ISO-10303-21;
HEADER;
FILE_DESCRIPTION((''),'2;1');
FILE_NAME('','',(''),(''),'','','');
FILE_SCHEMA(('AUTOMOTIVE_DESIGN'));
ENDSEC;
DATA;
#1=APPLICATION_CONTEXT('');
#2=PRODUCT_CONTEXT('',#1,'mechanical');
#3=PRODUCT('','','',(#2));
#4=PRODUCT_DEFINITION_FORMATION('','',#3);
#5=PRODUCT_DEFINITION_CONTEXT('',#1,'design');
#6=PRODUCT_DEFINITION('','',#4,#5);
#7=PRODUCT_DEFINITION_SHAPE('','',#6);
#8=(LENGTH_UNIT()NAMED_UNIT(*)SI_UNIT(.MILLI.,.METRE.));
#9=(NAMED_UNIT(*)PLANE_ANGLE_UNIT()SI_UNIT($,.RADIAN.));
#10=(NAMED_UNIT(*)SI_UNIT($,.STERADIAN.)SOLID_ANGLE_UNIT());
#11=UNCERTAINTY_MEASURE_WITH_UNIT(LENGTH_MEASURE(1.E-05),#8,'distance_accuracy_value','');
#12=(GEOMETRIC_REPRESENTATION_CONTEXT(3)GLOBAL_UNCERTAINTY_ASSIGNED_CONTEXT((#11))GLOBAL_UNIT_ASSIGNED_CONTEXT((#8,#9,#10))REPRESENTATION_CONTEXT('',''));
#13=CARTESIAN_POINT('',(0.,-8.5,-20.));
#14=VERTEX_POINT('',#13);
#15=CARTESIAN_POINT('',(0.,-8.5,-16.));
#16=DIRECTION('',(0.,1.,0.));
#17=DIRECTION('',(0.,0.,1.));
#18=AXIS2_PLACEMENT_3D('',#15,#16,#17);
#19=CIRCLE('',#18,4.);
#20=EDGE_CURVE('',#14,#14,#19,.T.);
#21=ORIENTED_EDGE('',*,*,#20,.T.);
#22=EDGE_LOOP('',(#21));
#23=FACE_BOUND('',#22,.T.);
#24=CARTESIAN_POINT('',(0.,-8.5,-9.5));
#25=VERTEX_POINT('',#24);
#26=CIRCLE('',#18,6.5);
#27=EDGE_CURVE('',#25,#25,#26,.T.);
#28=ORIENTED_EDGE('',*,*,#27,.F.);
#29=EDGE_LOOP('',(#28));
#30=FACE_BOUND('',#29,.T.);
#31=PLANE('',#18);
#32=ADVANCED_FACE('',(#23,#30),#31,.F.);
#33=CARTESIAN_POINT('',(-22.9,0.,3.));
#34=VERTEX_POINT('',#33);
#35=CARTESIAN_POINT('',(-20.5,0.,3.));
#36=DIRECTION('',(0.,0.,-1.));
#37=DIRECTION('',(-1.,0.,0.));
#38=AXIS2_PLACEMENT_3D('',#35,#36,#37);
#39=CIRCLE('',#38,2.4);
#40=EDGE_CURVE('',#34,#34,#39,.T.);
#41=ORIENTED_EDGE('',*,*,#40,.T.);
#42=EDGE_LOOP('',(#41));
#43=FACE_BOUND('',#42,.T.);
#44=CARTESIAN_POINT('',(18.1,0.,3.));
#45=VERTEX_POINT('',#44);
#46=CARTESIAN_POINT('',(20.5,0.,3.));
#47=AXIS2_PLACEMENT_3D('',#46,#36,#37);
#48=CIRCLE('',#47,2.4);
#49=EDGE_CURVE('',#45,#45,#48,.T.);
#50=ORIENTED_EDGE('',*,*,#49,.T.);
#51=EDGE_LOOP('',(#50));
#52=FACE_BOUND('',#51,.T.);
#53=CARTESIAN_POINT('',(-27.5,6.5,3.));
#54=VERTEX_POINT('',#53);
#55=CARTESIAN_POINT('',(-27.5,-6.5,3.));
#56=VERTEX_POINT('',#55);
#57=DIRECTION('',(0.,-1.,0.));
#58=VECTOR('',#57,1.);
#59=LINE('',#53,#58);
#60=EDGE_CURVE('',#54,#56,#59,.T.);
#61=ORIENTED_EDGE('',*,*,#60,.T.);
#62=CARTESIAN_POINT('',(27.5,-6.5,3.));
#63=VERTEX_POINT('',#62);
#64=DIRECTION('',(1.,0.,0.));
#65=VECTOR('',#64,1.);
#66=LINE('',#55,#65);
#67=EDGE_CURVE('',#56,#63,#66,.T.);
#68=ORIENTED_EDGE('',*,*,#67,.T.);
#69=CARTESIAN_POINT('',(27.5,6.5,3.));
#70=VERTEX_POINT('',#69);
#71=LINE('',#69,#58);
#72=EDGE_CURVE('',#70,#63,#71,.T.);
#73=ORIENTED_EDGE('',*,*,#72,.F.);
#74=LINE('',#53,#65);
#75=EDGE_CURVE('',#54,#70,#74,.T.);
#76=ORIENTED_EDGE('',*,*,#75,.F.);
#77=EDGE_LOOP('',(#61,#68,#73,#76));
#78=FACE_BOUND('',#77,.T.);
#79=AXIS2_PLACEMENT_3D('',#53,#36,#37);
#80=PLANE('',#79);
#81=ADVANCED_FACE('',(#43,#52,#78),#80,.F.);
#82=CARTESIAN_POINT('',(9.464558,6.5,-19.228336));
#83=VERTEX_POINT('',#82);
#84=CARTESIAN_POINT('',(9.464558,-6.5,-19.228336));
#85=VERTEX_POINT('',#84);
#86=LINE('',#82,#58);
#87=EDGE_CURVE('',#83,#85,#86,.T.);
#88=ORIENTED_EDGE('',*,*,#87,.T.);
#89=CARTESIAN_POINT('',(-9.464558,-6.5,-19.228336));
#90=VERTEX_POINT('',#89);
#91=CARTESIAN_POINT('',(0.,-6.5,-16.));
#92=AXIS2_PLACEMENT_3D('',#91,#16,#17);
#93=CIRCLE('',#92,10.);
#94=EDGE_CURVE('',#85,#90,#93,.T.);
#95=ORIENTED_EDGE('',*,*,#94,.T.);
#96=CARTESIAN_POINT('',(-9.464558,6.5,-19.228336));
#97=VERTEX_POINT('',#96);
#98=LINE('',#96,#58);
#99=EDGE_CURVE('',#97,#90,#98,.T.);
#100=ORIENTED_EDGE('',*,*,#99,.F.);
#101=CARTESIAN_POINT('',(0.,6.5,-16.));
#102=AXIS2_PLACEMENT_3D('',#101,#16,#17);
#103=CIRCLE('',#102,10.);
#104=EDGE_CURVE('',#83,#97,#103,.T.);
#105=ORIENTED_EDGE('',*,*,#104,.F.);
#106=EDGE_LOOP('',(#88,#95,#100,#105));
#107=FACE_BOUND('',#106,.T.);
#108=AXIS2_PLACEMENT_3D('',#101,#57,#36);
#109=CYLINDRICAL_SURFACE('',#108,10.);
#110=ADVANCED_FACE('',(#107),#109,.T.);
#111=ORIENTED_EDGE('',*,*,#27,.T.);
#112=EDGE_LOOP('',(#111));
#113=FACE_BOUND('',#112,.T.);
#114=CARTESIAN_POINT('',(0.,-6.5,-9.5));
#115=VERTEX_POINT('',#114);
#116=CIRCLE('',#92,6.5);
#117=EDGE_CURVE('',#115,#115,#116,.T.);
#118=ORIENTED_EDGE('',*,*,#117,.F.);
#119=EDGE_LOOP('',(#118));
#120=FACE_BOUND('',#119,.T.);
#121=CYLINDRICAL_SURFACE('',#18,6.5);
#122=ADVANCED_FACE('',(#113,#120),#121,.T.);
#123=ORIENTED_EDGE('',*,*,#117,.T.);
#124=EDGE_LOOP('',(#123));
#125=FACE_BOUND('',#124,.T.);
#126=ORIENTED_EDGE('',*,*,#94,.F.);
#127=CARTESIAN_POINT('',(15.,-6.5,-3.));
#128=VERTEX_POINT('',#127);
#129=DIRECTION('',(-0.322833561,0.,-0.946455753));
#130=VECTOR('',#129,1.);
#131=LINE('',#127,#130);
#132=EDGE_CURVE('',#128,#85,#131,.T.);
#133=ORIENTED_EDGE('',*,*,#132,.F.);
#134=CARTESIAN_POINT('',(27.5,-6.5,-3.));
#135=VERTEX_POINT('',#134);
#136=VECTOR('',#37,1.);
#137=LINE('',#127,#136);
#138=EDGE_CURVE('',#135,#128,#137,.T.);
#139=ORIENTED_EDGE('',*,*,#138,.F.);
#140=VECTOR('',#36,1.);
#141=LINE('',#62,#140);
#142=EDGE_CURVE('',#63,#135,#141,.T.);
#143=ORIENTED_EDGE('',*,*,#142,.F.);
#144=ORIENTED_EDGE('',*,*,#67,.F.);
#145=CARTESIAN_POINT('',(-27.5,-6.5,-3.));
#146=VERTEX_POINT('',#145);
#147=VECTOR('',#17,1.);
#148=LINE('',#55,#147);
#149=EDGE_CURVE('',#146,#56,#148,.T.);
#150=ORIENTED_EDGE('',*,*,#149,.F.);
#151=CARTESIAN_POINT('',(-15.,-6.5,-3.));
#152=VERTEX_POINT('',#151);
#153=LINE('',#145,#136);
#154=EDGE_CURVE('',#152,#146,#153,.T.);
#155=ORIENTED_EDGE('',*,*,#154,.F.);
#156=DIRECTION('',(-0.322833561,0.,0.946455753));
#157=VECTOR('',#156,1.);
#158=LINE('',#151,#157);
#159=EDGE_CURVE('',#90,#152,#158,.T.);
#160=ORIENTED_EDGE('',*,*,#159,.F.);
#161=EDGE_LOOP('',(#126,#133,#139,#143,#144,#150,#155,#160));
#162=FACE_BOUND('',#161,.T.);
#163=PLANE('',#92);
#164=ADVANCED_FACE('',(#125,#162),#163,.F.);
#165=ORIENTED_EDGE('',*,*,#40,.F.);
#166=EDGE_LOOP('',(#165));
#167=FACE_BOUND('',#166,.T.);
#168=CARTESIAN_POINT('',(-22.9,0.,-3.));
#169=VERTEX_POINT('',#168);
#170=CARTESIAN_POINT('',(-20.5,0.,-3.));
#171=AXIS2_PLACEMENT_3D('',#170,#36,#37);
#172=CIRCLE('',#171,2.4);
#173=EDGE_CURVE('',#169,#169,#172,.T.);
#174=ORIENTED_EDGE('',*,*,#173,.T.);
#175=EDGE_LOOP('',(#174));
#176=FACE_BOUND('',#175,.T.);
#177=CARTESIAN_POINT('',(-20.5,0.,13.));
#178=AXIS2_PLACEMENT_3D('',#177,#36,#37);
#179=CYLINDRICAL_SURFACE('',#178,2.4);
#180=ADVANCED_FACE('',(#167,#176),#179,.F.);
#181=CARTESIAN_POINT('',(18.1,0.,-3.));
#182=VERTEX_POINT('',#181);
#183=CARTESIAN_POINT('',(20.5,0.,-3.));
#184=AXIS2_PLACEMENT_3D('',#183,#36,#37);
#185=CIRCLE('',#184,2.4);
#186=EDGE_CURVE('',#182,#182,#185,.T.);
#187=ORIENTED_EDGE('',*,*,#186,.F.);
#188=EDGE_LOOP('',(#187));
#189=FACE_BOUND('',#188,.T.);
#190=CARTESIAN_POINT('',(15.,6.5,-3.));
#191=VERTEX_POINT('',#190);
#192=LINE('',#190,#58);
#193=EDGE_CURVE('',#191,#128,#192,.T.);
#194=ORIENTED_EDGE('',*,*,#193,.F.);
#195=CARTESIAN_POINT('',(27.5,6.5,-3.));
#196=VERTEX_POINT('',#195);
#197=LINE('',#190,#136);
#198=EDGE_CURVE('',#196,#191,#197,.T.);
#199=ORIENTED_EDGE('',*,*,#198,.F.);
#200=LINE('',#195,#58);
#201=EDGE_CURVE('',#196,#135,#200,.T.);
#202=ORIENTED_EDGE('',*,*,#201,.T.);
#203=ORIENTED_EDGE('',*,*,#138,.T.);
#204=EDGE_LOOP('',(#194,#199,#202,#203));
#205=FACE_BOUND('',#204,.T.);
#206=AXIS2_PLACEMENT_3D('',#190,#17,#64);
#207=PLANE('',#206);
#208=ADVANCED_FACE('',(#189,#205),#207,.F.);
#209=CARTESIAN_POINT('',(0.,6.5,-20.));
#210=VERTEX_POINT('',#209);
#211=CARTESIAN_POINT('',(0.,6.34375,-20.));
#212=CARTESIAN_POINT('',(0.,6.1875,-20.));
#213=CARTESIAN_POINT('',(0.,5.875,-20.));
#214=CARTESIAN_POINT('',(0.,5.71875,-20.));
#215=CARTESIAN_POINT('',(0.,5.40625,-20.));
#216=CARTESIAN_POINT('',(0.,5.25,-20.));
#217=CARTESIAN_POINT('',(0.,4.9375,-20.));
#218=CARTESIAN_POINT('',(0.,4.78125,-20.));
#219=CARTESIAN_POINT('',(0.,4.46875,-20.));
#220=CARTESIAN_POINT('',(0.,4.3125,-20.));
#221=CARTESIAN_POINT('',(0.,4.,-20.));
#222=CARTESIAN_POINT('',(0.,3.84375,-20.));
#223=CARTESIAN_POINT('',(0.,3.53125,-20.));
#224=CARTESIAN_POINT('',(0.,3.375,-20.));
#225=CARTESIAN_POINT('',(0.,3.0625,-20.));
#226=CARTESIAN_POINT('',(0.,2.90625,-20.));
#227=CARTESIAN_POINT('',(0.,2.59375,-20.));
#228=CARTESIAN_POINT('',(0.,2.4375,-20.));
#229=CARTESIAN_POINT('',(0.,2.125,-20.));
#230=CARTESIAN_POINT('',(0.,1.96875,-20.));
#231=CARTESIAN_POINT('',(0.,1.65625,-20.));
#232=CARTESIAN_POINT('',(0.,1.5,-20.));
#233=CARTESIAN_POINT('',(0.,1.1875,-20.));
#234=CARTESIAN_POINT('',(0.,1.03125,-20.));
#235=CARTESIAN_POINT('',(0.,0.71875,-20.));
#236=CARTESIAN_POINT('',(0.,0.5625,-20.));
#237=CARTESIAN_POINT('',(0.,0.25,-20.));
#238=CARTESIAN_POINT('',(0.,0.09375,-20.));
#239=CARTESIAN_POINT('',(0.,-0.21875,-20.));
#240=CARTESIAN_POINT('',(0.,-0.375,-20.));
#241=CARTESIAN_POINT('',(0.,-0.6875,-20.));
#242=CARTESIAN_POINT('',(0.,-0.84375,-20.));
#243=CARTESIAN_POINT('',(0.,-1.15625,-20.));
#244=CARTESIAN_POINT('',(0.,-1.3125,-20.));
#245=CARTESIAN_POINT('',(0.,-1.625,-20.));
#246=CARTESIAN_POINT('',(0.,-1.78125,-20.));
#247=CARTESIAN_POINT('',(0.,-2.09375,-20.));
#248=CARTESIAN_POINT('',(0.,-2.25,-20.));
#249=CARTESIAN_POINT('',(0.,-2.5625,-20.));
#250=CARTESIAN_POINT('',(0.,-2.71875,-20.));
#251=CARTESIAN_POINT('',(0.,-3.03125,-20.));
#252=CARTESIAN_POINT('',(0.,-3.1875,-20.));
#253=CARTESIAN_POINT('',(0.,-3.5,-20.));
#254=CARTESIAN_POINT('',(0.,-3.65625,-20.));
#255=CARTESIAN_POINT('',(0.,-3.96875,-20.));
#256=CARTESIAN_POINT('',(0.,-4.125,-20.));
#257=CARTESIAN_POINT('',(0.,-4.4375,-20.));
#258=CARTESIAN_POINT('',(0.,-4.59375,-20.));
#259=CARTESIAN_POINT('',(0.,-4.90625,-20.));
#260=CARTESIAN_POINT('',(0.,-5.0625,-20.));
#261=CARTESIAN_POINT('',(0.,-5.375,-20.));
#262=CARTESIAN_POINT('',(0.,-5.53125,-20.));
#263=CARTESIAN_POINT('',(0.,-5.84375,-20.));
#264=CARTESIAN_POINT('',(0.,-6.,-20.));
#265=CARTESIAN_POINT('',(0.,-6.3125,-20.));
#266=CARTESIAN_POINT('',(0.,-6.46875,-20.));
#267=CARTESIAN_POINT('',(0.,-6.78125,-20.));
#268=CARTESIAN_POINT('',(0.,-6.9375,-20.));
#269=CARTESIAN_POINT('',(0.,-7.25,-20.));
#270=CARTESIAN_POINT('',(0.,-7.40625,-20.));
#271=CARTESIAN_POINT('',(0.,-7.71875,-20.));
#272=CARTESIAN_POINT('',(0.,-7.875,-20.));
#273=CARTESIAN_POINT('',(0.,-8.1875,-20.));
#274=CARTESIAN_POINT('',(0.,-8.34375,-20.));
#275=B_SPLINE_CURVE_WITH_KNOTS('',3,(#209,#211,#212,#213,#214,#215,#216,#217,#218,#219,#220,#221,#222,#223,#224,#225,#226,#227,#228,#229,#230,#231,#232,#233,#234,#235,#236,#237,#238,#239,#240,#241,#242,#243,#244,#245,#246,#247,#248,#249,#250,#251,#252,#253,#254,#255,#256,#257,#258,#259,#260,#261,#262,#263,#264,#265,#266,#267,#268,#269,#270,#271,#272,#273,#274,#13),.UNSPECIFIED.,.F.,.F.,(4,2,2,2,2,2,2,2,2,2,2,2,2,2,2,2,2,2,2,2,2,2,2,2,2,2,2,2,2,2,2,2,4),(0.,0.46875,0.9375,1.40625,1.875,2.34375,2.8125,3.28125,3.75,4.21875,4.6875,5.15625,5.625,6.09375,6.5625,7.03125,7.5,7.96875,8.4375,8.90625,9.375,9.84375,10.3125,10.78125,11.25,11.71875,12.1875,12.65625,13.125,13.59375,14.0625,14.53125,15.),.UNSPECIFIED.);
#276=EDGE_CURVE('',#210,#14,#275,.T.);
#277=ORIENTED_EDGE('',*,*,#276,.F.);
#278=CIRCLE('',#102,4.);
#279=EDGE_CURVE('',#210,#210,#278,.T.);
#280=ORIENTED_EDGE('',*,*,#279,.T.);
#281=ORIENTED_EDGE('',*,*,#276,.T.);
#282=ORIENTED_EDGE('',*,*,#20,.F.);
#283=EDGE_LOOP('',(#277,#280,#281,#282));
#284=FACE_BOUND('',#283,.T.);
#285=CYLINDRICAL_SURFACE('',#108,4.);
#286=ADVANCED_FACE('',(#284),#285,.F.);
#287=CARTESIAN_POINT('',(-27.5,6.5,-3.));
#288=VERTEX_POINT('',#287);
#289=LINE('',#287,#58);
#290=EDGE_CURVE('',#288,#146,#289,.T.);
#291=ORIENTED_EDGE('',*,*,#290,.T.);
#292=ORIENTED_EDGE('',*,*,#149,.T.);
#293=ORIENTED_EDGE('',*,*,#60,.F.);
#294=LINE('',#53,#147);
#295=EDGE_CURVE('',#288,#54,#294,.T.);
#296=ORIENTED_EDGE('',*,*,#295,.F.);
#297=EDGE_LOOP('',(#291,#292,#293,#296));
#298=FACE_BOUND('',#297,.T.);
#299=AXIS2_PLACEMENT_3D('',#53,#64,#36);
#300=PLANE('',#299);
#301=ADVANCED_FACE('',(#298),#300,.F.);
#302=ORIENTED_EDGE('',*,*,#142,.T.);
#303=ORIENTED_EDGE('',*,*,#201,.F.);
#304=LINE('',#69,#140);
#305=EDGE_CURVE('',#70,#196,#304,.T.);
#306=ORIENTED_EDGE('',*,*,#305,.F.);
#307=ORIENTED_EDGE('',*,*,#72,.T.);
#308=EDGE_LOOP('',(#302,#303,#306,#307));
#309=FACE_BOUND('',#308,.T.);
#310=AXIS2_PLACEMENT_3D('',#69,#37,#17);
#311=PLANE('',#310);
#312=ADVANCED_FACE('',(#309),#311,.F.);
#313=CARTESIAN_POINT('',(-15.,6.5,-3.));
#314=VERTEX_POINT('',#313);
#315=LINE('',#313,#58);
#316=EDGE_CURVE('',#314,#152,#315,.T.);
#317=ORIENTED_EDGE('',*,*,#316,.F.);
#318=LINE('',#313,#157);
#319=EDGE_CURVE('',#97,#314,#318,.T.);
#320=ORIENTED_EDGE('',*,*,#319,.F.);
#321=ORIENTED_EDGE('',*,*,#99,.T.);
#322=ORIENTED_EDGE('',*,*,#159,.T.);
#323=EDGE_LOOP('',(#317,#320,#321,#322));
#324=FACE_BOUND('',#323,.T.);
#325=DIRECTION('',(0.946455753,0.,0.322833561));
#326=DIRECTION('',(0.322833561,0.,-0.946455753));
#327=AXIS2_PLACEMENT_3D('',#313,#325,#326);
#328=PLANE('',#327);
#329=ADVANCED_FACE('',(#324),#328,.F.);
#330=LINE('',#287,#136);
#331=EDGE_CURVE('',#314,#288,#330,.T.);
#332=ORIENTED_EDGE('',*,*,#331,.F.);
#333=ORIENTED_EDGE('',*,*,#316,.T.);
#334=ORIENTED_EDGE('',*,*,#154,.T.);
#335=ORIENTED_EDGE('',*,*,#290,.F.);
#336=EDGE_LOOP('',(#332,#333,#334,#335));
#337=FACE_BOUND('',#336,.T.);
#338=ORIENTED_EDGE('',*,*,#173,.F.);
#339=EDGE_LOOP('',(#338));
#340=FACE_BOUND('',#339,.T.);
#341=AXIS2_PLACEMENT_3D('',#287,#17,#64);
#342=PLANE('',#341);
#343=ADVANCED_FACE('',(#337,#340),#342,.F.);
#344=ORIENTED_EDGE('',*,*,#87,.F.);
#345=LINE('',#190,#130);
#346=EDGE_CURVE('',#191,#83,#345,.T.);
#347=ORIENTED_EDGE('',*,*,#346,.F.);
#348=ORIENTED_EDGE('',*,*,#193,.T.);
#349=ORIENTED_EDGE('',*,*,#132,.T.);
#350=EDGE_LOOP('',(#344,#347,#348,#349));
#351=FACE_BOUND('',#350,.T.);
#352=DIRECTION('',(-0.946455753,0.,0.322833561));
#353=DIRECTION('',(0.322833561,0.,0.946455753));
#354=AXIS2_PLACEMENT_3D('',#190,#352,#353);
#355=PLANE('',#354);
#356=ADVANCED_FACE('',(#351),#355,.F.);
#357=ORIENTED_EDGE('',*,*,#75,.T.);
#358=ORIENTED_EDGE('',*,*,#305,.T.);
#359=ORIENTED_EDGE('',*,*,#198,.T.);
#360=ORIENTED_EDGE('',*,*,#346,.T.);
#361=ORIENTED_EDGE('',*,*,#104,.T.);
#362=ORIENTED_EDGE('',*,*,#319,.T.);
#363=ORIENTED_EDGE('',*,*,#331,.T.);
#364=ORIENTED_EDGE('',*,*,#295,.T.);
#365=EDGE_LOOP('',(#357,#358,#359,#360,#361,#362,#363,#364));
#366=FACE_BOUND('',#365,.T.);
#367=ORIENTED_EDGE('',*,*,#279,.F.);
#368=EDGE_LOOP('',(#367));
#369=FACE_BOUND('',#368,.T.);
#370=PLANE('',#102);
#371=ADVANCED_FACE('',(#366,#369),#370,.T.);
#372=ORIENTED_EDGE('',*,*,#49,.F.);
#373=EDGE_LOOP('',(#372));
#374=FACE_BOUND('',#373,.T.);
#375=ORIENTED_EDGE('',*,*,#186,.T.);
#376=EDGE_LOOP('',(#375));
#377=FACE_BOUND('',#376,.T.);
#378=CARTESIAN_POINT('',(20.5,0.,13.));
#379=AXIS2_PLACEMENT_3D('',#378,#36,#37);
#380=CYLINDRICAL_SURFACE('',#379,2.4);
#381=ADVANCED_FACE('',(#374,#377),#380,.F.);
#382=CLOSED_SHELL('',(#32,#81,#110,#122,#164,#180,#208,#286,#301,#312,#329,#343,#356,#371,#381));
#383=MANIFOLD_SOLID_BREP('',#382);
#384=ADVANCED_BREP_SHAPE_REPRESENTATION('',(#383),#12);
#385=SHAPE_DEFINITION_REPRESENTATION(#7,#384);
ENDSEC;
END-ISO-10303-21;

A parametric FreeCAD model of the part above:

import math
import FreeCAD as App
import Part
import Sketcher
from FreeCAD import Vector
Q = App.Units.Quantity

doc = App.newDocument("Part")
body = doc.addObject("PartDesign::Body", "Body")

# Sketch on XZ plane
sketch1 = body.newObject("Sketcher::SketchObject", "Sketch")
sketch1.AttachmentSupport = (doc.getObject("XZ_Plane"), [""])
sketch1.MapMode = "FlatFace"
sketch1.addGeometry([
    Part.LineSegment(Vector(-9.5, -19.2, 0), Vector(-15, -3, 0)),  # 0
    Part.LineSegment(Vector(-15, -3, 0), Vector(-27.5, -3, 0)),  # 1
    Part.LineSegment(Vector(-27.5, -3, 0), Vector(-27.5, 3, 0)),  # 2
    Part.LineSegment(Vector(-27.5, 3, 0), Vector(27.5, 3, 0)),  # 3
    Part.LineSegment(Vector(27.5, 3, 0), Vector(27.5, -3, 0)),  # 4
    Part.LineSegment(Vector(27.5, -3, 0), Vector(15, -3, 0)),  # 5
    Part.LineSegment(Vector(15, -3, 0), Vector(9.5, -19.2, 0)),  # 6
    Part.ArcOfCircle(Part.Circle(Vector(0, -16, 0), Vector(0, 0, 1), 10), math.radians(-161), math.radians(-19)),  # 7
    Part.Circle(Vector(0, -16, 0), Vector(0, 0, 1), 4),  # 8
], False)
sketch1.addConstraint([
    Sketcher.Constraint("Coincident", 0, 2, 1, 1),
    Sketcher.Constraint("Coincident", 1, 2, 2, 1),
    Sketcher.Constraint("Coincident", 2, 2, 3, 1),
    Sketcher.Constraint("Coincident", 3, 2, 4, 1),
    Sketcher.Constraint("Coincident", 4, 2, 5, 1),
    Sketcher.Constraint("Coincident", 5, 2, 6, 1),
    Sketcher.Constraint("Tangent", 6, 2, 7, 2),
    Sketcher.Constraint("Tangent", 7, 1, 0, 1),
    Sketcher.Constraint("Horizontal", 1),
    Sketcher.Constraint("Vertical", 2),
    Sketcher.Constraint("Horizontal", 3),
    Sketcher.Constraint("Vertical", 4),
    Sketcher.Constraint("Horizontal", 5),
    Sketcher.Constraint("Coincident", 8, 3, 7, 3),
    Sketcher.Constraint("Symmetric", 1, 2, 3, 2, -1, 1),
    Sketcher.Constraint("Symmetric", 0, 2, 5, 2, -2),
    Sketcher.Constraint("PointOnObject", 7, 3, -2),
    Sketcher.Constraint("Diameter", 8, Q("8 mm")),
    Sketcher.Constraint("Radius", 7, Q("10 mm")),
    Sketcher.Constraint("DistanceX", 3, 1, 3, 2, Q("55 mm")),
    Sketcher.Constraint("DistanceY", 2, 1, 2, 2, Q("6 mm")),
    Sketcher.Constraint("DistanceX", 1, 2, 1, 1, Q("12.5 mm")),
    Sketcher.Constraint("DistanceY", 7, 3, -1, 1, Q("16 mm")),
])
pad1 = body.newObject("PartDesign::Pad", "Pad")
pad1.Profile = sketch1
pad1.Length = 13
pad1.Midplane = True

# Sketch on XZ plane
sketch2 = body.newObject("Sketcher::SketchObject", "Sketch001")
sketch2.AttachmentSupport = (doc.getObject("XZ_Plane"), [""])
sketch2.MapMode = "FlatFace"
sketch2.AttachmentOffset = App.Placement(Vector(0, 0, -3.5), App.Rotation())
sketch2.addGeometry(Part.Circle(Vector(0, -16, 0), Vector(0, 0, 1), 6), False)
sketch2.addConstraint([
    Sketcher.Constraint("PointOnObject", 0, 3, -2),
    Sketcher.Constraint("Diameter", 0, Q("13 mm")),
    Sketcher.Constraint("DistanceY", 0, 3, -1, 1, Q("16 mm")),
])
pad2 = body.newObject("PartDesign::Pad", "Pad001")
pad2.Profile = sketch2
pad2.Length = 12

# Sketch on XY plane
sketch3 = body.newObject("Sketcher::SketchObject", "Sketch002")
sketch3.AttachmentSupport = (doc.getObject("XY_Plane"), [""])
sketch3.MapMode = "FlatFace"
sketch3.AttachmentOffset = App.Placement(Vector(0, 0, -3), App.Rotation())
sketch3.addGeometry([
    Part.Circle(Vector(-20.5, 0, 0), Vector(0, 0, 1), 2.4),
    Part.Circle(Vector(20.5, 0, 0), Vector(0, 0, 1), 2.4),
], False)
sketch3.addConstraint([
    Sketcher.Constraint("Equal", 0, 1),
    Sketcher.Constraint("Symmetric", 0, 3, 1, 3, -1, 1),
    Sketcher.Constraint("PointOnObject", 0, 3, -1),
    Sketcher.Constraint("Diameter", 0, Q("4.8 mm")),
    Sketcher.Constraint("DistanceX", 0, 3, 1, 3, Q("41 mm")),
])
pocket1 = body.newObject("PartDesign::Pocket", "Pocket")
pocket1.Profile = sketch3
pocket1.Length = 16
pocket1.Reversed = True

# Sketch on XZ plane
sketch4 = body.newObject("Sketcher::SketchObject", "Sketch003")
sketch4.AttachmentSupport = (doc.getObject("XZ_Plane"), [""])
sketch4.MapMode = "FlatFace"
sketch4.AttachmentOffset = App.Placement(Vector(0, 0, 8.5), App.Rotation())
sketch4.addGeometry(Part.Circle(Vector(0, -16, 0), Vector(0, 0, 1), 4), False)
sketch4.addConstraint([
    Sketcher.Constraint("PointOnObject", 0, 3, -2),
    Sketcher.Constraint("Diameter", 0, Q("8 mm")),
    Sketcher.Constraint("DistanceY", 0, 3, -1, 1, Q("16 mm")),
])
pocket2 = body.newObject("PartDesign::Pocket", "Pocket001")
pocket2.Profile = sketch4
pocket2.Length = 12

doc.recompute()
